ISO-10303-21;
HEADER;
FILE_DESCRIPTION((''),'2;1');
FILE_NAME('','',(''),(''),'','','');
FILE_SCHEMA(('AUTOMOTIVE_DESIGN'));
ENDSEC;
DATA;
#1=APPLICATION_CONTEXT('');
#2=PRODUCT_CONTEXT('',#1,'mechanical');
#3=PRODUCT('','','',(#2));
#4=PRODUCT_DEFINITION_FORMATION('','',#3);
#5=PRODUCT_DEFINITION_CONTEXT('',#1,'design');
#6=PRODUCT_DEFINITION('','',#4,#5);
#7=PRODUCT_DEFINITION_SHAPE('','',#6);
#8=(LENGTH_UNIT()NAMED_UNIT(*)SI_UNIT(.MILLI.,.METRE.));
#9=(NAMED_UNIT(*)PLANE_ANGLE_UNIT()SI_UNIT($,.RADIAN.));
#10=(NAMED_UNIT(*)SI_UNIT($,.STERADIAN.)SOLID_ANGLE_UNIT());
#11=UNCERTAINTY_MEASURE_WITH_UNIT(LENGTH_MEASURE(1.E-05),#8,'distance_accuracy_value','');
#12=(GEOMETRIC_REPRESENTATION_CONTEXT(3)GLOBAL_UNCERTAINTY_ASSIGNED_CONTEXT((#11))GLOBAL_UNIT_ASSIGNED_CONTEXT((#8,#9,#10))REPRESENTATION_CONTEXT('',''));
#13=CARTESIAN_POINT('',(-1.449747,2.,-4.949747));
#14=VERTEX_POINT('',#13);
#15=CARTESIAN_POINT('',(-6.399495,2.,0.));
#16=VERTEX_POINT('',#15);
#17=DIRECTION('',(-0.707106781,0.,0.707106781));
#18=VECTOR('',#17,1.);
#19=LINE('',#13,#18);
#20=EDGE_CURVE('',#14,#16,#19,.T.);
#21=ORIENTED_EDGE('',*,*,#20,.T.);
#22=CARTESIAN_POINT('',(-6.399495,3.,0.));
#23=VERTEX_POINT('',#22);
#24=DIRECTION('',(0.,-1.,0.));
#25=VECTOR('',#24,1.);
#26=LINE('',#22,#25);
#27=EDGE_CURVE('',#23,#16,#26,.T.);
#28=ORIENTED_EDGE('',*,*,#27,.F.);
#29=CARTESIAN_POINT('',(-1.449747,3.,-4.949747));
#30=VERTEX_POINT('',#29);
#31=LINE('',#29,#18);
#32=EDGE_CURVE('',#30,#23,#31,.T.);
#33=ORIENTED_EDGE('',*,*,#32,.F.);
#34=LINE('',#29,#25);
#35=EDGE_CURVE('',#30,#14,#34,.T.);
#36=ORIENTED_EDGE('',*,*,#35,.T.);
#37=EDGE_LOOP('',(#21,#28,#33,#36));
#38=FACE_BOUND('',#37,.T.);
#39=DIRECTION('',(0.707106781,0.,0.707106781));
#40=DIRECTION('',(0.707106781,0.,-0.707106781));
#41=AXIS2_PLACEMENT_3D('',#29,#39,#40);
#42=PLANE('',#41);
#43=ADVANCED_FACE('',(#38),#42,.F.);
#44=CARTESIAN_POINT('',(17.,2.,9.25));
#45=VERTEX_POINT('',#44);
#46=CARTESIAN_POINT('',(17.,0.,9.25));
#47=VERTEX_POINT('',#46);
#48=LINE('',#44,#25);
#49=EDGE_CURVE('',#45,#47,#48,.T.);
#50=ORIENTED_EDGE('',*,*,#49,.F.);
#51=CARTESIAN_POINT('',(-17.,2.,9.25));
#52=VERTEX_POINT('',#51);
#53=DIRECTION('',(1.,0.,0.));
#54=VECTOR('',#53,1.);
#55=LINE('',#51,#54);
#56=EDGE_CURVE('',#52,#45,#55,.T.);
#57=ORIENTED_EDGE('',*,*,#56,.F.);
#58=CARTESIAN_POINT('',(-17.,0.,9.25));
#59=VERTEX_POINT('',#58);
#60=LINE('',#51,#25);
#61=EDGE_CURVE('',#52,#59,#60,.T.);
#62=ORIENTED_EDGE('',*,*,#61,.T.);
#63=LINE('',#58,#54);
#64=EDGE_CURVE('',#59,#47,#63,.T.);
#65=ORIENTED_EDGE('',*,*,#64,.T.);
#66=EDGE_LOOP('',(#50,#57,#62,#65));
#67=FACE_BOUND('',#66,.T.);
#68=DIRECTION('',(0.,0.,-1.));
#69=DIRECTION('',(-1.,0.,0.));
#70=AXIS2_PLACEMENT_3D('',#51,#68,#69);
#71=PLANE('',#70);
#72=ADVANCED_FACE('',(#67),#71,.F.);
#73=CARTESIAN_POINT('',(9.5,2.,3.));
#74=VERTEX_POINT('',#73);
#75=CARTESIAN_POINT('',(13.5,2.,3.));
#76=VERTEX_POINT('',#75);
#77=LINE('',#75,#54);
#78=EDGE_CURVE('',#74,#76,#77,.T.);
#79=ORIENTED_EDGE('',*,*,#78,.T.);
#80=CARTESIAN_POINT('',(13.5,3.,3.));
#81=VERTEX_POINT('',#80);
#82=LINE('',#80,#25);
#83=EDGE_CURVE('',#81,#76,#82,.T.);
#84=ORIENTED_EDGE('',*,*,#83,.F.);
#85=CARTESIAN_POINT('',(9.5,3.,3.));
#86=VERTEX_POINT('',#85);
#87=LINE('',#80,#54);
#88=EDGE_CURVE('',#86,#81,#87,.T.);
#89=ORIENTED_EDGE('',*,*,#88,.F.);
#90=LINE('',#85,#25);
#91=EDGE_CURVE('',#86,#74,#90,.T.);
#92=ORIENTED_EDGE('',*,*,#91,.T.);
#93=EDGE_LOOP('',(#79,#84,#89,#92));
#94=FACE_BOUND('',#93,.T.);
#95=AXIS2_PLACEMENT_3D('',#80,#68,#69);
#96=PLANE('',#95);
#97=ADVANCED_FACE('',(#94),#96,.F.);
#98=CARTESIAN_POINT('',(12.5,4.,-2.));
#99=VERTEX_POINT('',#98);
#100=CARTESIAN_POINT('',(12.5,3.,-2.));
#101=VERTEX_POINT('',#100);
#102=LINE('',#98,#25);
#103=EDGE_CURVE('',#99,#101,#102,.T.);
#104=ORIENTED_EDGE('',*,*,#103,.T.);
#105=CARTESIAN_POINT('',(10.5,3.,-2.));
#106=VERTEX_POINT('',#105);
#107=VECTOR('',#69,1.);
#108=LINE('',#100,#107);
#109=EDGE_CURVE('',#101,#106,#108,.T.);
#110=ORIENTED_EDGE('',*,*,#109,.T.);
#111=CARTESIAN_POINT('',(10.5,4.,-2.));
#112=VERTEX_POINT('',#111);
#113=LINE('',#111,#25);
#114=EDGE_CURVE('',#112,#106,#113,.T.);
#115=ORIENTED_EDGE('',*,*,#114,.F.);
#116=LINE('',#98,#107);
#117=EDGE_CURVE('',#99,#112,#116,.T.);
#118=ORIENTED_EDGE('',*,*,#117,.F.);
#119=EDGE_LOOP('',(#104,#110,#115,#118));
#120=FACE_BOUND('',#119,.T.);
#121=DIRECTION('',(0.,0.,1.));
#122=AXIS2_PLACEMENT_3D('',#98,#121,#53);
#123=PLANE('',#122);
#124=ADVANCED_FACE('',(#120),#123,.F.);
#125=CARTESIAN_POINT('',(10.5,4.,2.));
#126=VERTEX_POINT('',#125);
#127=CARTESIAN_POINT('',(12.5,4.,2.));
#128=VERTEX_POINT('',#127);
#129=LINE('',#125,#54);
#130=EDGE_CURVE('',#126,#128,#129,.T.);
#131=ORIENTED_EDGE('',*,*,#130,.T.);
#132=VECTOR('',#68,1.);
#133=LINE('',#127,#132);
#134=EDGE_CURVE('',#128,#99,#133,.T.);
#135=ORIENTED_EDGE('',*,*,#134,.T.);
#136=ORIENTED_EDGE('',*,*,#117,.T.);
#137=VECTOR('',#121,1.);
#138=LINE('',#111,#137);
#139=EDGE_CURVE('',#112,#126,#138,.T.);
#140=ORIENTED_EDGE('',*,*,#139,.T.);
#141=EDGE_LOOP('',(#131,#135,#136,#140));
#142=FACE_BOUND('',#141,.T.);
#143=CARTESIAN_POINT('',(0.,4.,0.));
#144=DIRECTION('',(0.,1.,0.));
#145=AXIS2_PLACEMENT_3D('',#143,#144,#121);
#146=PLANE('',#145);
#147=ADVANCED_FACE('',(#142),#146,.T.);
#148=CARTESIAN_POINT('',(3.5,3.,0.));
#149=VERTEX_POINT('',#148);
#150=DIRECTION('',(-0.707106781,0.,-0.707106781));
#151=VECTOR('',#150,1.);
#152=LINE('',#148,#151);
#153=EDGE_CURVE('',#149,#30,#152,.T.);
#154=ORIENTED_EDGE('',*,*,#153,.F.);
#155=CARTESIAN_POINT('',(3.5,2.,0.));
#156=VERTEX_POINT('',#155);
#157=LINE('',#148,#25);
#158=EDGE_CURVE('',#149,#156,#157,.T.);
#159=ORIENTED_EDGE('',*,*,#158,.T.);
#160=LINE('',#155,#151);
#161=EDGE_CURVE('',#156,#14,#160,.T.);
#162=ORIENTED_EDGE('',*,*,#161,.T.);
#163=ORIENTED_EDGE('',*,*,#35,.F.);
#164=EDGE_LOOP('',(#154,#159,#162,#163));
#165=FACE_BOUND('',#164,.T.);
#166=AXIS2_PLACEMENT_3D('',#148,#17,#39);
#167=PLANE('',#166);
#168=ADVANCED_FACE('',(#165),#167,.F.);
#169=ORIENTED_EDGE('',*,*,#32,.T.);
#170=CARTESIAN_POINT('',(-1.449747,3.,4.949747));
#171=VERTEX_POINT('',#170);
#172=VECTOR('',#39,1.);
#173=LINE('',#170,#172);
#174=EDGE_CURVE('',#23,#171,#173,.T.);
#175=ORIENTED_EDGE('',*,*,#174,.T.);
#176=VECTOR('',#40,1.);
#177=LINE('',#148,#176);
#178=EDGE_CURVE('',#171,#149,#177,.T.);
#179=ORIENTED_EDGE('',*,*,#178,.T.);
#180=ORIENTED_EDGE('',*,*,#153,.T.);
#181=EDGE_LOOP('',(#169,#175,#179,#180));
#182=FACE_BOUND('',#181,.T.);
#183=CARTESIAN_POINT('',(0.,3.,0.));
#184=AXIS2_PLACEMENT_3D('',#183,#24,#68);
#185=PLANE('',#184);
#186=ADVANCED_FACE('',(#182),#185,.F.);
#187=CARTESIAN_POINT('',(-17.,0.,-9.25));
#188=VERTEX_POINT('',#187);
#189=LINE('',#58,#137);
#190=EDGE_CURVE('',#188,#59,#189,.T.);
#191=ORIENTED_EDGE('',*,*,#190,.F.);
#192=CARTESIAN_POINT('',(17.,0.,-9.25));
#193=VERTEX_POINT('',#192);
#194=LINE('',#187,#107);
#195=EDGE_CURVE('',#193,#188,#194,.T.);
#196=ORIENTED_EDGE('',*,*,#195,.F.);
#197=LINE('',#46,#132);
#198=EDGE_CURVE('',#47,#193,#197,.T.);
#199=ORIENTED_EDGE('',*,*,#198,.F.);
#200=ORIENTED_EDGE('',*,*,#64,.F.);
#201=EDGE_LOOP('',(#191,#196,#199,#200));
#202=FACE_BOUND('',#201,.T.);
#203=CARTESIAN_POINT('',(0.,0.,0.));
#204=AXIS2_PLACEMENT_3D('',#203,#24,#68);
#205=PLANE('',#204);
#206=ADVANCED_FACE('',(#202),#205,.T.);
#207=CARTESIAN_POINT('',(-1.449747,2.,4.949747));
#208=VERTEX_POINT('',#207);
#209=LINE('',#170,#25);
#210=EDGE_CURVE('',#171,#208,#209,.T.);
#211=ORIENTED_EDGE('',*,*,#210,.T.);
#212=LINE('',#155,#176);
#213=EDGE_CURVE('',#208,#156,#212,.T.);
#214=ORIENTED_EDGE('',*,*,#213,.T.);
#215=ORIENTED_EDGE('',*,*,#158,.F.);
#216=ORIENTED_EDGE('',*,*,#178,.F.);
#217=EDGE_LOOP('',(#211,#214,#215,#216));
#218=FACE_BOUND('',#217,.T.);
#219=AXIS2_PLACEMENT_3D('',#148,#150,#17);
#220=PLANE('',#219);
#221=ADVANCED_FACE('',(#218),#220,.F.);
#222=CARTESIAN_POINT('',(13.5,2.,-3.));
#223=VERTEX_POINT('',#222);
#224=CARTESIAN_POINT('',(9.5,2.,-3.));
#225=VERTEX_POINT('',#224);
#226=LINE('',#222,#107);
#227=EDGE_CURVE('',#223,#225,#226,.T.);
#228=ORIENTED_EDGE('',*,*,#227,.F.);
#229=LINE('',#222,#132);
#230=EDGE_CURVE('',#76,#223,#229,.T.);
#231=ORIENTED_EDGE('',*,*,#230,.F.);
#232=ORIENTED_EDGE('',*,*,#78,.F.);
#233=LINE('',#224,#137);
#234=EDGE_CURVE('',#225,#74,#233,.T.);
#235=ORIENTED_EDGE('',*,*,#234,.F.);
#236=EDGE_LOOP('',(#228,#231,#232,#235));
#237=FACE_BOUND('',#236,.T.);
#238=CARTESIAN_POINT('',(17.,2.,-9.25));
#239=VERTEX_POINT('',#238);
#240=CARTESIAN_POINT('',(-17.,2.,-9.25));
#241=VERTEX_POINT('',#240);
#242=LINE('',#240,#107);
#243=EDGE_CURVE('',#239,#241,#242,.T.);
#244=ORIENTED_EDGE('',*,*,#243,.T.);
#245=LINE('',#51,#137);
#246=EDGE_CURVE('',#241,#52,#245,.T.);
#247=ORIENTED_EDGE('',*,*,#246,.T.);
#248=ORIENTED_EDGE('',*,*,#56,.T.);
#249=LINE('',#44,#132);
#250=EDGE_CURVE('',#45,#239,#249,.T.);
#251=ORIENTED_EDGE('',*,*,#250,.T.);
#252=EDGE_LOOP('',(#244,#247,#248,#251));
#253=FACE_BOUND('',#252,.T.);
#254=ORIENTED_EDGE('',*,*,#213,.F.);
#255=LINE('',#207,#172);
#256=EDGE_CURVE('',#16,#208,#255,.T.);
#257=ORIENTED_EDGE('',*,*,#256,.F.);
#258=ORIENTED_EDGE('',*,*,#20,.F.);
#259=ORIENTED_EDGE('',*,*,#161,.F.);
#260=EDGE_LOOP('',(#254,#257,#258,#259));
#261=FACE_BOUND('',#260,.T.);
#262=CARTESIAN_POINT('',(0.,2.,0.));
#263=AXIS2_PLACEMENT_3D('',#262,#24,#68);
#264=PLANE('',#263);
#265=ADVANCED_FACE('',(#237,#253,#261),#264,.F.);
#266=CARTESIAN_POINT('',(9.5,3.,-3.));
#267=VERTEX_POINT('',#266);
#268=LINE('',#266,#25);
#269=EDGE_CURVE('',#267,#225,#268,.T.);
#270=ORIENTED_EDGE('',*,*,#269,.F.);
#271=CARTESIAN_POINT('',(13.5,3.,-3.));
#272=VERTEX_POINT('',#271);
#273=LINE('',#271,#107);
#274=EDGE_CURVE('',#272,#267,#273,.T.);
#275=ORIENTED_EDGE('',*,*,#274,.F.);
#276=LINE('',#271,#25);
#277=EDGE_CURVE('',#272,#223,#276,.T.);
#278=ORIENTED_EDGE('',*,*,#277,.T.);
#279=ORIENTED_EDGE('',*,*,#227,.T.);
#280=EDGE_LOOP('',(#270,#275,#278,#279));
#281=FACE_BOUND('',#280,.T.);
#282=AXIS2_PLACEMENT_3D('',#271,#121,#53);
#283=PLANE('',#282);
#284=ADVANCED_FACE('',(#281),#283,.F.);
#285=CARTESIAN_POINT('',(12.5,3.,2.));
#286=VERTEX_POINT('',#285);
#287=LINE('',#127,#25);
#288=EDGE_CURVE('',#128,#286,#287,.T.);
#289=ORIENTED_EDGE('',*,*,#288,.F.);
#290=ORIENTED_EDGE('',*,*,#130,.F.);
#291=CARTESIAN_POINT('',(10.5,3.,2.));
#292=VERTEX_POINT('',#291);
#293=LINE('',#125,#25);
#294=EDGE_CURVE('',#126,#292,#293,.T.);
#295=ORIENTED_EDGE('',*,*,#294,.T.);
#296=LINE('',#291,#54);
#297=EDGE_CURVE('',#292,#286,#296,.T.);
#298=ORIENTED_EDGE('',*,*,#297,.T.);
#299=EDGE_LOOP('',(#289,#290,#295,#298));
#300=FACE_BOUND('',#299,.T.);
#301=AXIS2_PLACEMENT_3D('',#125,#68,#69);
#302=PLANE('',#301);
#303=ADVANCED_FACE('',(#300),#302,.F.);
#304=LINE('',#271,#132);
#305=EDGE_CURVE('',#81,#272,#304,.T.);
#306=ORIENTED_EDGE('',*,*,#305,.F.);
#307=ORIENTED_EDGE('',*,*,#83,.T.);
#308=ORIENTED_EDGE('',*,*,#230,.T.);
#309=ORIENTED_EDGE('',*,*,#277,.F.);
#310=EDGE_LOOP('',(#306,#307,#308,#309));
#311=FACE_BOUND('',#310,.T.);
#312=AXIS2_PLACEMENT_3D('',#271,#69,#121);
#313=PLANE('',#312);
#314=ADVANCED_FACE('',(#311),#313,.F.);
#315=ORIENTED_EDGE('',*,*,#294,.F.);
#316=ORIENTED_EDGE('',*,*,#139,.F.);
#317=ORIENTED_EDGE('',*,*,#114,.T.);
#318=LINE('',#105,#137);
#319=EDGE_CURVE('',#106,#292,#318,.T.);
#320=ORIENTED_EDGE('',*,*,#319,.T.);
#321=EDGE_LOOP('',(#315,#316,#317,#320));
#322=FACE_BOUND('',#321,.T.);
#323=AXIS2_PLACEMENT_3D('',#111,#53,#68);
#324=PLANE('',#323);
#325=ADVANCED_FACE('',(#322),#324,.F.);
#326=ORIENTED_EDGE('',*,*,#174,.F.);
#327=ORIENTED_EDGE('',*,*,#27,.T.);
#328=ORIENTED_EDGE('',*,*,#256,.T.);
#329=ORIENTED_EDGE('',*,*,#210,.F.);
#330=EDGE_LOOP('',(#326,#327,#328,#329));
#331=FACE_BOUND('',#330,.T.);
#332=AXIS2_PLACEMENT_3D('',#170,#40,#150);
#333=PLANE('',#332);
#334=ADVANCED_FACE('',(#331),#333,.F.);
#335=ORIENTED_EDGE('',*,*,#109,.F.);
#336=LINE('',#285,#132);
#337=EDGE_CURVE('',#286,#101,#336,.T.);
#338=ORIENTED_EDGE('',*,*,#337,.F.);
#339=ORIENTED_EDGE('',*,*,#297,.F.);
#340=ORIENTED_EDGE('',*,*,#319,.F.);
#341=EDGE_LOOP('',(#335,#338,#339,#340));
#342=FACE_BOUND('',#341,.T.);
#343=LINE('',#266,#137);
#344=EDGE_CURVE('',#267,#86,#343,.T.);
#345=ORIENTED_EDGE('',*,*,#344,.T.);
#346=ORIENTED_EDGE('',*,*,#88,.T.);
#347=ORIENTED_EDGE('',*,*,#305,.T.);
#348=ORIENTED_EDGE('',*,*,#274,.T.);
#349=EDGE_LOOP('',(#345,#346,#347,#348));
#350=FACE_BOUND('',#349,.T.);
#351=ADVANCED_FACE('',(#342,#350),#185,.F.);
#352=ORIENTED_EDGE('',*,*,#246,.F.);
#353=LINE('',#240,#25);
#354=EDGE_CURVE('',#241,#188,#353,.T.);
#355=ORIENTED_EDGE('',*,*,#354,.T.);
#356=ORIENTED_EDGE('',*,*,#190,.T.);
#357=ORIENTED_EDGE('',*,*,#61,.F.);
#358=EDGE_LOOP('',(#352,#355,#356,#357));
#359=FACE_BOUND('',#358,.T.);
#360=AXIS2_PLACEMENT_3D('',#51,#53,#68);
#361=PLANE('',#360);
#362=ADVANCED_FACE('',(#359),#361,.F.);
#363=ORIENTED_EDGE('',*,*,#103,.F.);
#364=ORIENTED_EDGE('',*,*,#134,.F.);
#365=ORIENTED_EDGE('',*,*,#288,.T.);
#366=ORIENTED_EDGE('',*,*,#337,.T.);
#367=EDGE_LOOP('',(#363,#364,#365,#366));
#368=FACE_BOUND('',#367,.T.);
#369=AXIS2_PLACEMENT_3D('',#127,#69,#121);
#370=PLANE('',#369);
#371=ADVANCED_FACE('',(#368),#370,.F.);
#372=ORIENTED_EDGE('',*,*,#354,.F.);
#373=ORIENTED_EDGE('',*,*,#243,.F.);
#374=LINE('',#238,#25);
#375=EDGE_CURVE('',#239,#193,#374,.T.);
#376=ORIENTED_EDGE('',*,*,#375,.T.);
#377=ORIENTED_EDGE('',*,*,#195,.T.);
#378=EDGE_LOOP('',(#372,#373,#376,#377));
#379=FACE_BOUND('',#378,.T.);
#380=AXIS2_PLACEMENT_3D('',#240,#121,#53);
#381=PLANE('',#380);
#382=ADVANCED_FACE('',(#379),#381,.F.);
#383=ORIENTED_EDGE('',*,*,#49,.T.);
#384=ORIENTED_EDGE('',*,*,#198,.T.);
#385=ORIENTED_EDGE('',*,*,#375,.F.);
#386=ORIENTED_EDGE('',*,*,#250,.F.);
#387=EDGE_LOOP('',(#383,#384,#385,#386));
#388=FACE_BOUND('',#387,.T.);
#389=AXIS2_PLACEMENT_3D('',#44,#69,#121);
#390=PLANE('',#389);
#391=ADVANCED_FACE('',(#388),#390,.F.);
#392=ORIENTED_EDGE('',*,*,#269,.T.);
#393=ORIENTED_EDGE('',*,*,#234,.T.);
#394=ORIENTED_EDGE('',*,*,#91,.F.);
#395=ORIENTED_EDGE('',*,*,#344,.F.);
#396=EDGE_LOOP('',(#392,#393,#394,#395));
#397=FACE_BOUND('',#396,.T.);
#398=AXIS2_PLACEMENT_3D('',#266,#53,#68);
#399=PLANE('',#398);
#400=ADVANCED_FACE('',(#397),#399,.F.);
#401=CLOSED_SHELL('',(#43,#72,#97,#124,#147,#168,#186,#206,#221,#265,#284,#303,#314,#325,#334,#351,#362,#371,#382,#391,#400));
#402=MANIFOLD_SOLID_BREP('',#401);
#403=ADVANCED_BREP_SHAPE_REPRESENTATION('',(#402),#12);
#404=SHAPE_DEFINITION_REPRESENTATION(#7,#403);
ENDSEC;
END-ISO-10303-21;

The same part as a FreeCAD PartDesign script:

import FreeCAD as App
import Part
import Sketcher
from FreeCAD import Vector
Q = App.Units.Quantity

doc = App.newDocument("Part")
body = doc.addObject("PartDesign::Body", "Body")

# Sketch on XZ plane
sketch1 = body.newObject("Sketcher::SketchObject", "Sketch")
sketch1.AttachmentSupport = (doc.getObject("XZ_Plane"), [""])
sketch1.MapMode = "FlatFace"
sketch1.addGeometry([
    Part.LineSegment(Vector(-17, -9.25, 0), Vector(-17, 9.25, 0)),
    Part.LineSegment(Vector(-17, 9.25, 0), Vector(17, 9.25, 0)),
    Part.LineSegment(Vector(17, 9.25, 0), Vector(17, -9.25, 0)),
    Part.LineSegment(Vector(17, -9.25, 0), Vector(-17, -9.25, 0)),
], False)
sketch1.addConstraint([
    Sketcher.Constraint("Coincident", 0, 2, 1, 1),
    Sketcher.Constraint("Coincident", 1, 2, 2, 1),
    Sketcher.Constraint("Coincident", 2, 2, 3, 1),
    Sketcher.Constraint("Coincident", 3, 2, 0, 1),
    Sketcher.Constraint("Vertical", 0),
    Sketcher.Constraint("Horizontal", 1),
    Sketcher.Constraint("Vertical", 2),
    Sketcher.Constraint("Horizontal", 3),
    Sketcher.Constraint("Symmetric", 0, 2, 2, 2, -1, 1),
    Sketcher.Constraint("DistanceX", 1, 1, 1, 2, Q("34 mm")),
    Sketcher.Constraint("DistanceY", 0, 1, 0, 2, Q("18.5 mm")),
])
pad1 = body.newObject("PartDesign::Pad", "Pad")
pad1.Profile = sketch1
pad1.Length = 2
pad1.Reversed = True

# Sketch on XZ plane
sketch2 = body.newObject("Sketcher::SketchObject", "Sketch001")
sketch2.AttachmentSupport = (doc.getObject("XZ_Plane"), [""])
sketch2.MapMode = "FlatFace"
sketch2.AttachmentOffset = App.Placement(Vector(0, 0, -2), App.Rotation())
sketch2.addGeometry([
    Part.LineSegment(Vector(9.5, -3, 0), Vector(9.5, 3, 0)),
    Part.LineSegment(Vector(9.5, 3, 0), Vector(13.5, 3, 0)),
    Part.LineSegment(Vector(13.5, 3, 0), Vector(13.5, -3, 0)),
    Part.LineSegment(Vector(13.5, -3, 0), Vector(9.5, -3, 0)),
], False)
sketch2.addConstraint([
    Sketcher.Constraint("Coincident", 0, 2, 1, 1),
    Sketcher.Constraint("Coincident", 1, 2, 2, 1),
    Sketcher.Constraint("Coincident", 2, 2, 3, 1),
    Sketcher.Constraint("Coincident", 3, 2, 0, 1),
    Sketcher.Constraint("Vertical", 0),
    Sketcher.Constraint("Horizontal", 1),
    Sketcher.Constraint("Vertical", 2),
    Sketcher.Constraint("Horizontal", 3),
    Sketcher.Constraint("DistanceX", 1, 1, 1, 2, Q("4 mm")),
    Sketcher.Constraint("DistanceY", 0, 1, 0, 2, Q("6 mm")),
    Sketcher.Constraint("DistanceY", -1, 1, 0, 2, Q("3 mm")),
    Sketcher.Constraint("DistanceX", -1, 1, 0, 2, Q("9.5 mm")),
])
pad2 = body.newObject("PartDesign::Pad", "Pad001")
pad2.Profile = sketch2
pad2.Length = 1
pad2.Reversed = True

# Sketch on XZ plane
sketch3 = body.newObject("Sketcher::SketchObject", "Sketch002")
sketch3.AttachmentSupport = (doc.getObject("XZ_Plane"), [""])
sketch3.MapMode = "FlatFace"
sketch3.AttachmentOffset = App.Placement(Vector(0, 0, -3), App.Rotation())
sketch3.addGeometry([
    Part.LineSegment(Vector(10.5, -2, 0), Vector(10.5, 2, 0)),
    Part.LineSegment(Vector(10.5, 2, 0), Vector(12.5, 2, 0)),
    Part.LineSegment(Vector(12.5, 2, 0), Vector(12.5, -2, 0)),
    Part.LineSegment(Vector(12.5, -2, 0), Vector(10.5, -2, 0)),
], False)
sketch3.addConstraint([
    Sketcher.Constraint("Coincident", 0, 2, 1, 1),
    Sketcher.Constraint("Coincident", 1, 2, 2, 1),
    Sketcher.Constraint("Coincident", 2, 2, 3, 1),
    Sketcher.Constraint("Coincident", 3, 2, 0, 1),
    Sketcher.Constraint("Vertical", 0),
    Sketcher.Constraint("Horizontal", 1),
    Sketcher.Constraint("Vertical", 2),
    Sketcher.Constraint("Horizontal", 3),
    Sketcher.Constraint("DistanceX", 1, 1, 1, 2, Q("2 mm")),
    Sketcher.Constraint("DistanceY", 0, 1, 0, 2, Q("4 mm")),
    Sketcher.Constraint("DistanceY", -1, 1, 0, 2, Q("2 mm")),
    Sketcher.Constraint("DistanceX", -1, 1, 0, 2, Q("10.5 mm")),
])
pad3 = body.newObject("PartDesign::Pad", "Pad002")
pad3.Profile = sketch3
pad3.Length = 1
pad3.Reversed = True

# Sketch on XZ plane
sketch4 = body.newObject("Sketcher::SketchObject", "Sketch003")
sketch4.AttachmentSupport = (doc.getObject("XZ_Plane"), [""])
sketch4.MapMode = "FlatFace"
sketch4.AttachmentOffset = App.Placement(Vector(0, 0, -2), App.Rotation())
sketch4.addGeometry([
    Part.LineSegment(Vector(3.5, 0, 0), Vector(-1.449747, -4.949747, 0)),
    Part.LineSegment(Vector(-1.449747, -4.949747, 0), Vector(-6.399495, 0, 0)),
    Part.LineSegment(Vector(-6.399495, 0, 0), Vector(-1.449747, 4.949747, 0)),
    Part.LineSegment(Vector(-1.449747, 4.949747, 0), Vector(3.5, 0, 0)),
], False)
sketch4.addConstraint([
    Sketcher.Constraint("Coincident", 0, 2, 1, 1),
    Sketcher.Constraint("Coincident", 1, 2, 2, 1),
    Sketcher.Constraint("Coincident", 2, 2, 3, 1),
    Sketcher.Constraint("Coincident", 3, 2, 0, 1),
    Sketcher.Constraint("Symmetric", 0, 2, 2, 2, -1),
    Sketcher.Constraint("PointOnObject", 1, 2, -1),
    Sketcher.Constraint("PointOnObject", 3, 2, -1),
    Sketcher.Constraint("Perpendicular", 0, 1),
    Sketcher.Constraint("Perpendicular", 1, 2),
    Sketcher.Constraint("Distance", 0, Q("7 mm")),
    Sketcher.Constraint("DistanceX", -1, 1, 3, 2, Q("3.5 mm")),
])
pad4 = body.newObject("PartDesign::Pad", "Pad003")
pad4.Profile = sketch4
pad4.Length = 1
pad4.Reversed = True

doc.recompute()
